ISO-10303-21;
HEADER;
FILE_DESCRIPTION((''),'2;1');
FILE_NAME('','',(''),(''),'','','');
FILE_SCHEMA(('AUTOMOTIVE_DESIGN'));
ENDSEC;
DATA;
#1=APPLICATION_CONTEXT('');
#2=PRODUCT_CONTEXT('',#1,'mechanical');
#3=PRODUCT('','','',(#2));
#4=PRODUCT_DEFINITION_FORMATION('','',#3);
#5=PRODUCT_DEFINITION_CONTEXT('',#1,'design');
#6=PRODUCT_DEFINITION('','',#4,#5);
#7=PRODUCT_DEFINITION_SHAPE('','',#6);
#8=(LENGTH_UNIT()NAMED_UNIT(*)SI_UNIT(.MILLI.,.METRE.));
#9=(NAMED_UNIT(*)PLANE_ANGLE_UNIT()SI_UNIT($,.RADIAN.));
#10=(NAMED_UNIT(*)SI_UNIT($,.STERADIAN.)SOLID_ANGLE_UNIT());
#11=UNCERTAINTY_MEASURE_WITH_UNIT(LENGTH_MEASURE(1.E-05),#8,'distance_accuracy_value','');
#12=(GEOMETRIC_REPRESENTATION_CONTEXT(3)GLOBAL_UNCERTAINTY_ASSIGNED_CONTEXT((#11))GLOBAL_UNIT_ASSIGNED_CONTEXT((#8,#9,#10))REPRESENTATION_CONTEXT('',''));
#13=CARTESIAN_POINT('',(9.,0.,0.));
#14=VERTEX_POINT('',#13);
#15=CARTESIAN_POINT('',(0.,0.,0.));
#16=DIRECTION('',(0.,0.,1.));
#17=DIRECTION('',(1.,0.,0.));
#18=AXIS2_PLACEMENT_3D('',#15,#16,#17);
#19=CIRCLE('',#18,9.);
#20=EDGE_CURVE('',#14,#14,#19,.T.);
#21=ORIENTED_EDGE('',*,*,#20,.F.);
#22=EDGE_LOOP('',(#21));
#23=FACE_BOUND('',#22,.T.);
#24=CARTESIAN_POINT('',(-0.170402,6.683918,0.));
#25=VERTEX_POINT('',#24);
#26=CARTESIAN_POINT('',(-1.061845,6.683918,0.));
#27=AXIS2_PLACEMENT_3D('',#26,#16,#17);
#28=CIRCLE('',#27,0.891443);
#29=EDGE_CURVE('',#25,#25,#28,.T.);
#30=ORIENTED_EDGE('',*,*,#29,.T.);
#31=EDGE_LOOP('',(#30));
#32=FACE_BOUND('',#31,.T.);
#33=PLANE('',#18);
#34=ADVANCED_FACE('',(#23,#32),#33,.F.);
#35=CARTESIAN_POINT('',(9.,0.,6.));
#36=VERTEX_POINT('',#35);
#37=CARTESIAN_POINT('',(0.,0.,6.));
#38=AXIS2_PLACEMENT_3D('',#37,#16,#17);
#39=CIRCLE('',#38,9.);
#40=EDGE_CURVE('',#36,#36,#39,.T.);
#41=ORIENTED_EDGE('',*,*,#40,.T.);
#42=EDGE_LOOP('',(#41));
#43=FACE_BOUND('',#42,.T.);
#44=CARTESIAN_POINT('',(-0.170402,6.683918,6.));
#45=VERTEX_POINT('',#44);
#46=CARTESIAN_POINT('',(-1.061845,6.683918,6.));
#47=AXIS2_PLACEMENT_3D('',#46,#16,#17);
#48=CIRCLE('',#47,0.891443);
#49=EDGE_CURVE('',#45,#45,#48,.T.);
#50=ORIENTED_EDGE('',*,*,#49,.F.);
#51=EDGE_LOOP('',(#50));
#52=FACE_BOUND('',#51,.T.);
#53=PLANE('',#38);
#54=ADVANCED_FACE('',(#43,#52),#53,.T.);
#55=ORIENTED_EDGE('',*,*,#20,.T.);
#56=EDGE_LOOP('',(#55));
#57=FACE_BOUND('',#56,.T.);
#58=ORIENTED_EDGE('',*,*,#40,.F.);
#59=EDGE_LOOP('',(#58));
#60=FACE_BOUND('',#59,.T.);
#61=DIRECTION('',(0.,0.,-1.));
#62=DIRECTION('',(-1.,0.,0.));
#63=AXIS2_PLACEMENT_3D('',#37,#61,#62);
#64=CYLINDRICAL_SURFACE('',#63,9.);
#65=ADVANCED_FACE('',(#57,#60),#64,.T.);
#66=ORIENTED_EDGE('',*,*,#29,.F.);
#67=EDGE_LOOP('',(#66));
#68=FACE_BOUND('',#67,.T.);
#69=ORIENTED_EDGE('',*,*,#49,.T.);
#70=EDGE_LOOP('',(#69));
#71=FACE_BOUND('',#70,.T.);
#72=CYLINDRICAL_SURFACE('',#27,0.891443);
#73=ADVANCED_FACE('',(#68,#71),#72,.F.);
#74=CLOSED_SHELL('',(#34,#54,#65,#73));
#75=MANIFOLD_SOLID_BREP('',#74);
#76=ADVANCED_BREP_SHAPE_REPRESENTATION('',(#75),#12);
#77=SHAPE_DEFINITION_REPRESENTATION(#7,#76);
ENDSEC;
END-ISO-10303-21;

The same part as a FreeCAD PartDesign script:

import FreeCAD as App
import Part
import Sketcher
from FreeCAD import Vector
Q = App.Units.Quantity

doc = App.newDocument("Part")
params = doc.addObject("Spreadsheet::Sheet", "Params")
for row, (alias, value) in enumerate([
    ("sketch1_diameter", "18 mm"),
    ("pad1_length", "6 mm"),
], start=1):
    params.set(f"A{row}", alias)
    params.set(f"B{row}", "=" + value)
    params.setAlias(f"B{row}", alias)

body = doc.addObject("PartDesign::Body", "Body")

# Sketch on XY plane
sketch1 = body.newObject("Sketcher::SketchObject", "Sketch")
sketch1.AttachmentSupport = (doc.getObject("XY_Plane"), [""])
sketch1.MapMode = "FlatFace"
sketch1.addGeometry(Part.Circle(Vector(0, 0, 0), Vector(0, 0, 1), 9), False)
sketch1.addConstraint(Sketcher.Constraint("Coincident", 0, 3, -1, 1))
sketch1.addConstraint(Sketcher.Constraint("Diameter", 0, Q("18 mm")))
sketch1.setExpression("Constraints[1]", "Params.sketch1_diameter")
pad1 = body.newObject("PartDesign::Pad", "Pad")
pad1.Profile = sketch1
pad1.setExpression("Length", "Params.pad1_length")

# Sketch on XY plane
sketch2 = body.newObject("Sketcher::SketchObject", "Sketch001")
sketch2.AttachmentSupport = (doc.getObject("XY_Plane"), [""])
sketch2.MapMode = "FlatFace"
sketch2.AttachmentOffset = App.Placement(Vector(0, 0, 6), App.Rotation())
sketch2.addGeometry(Part.Circle(Vector(-1.1, 6.7, 0), Vector(0, 0, 1), 0.9), False)
sketch2.addConstraint(Sketcher.Constraint("Diameter", 0, Q("1.782886 mm")))
sketch2.addConstraint(Sketcher.Constraint("DistanceY", -1, 1, 0, 3, Q("6.683918 mm")))
sketch2.addConstraint(Sketcher.Constraint("DistanceX", 0, 3, -1, 1, Q("1.061845 mm")))
pocket1 = body.newObject("PartDesign::Pocket", "Pocket")
pocket1.Profile = sketch2
pocket1.Type = "ThroughAll"

doc.recompute()
